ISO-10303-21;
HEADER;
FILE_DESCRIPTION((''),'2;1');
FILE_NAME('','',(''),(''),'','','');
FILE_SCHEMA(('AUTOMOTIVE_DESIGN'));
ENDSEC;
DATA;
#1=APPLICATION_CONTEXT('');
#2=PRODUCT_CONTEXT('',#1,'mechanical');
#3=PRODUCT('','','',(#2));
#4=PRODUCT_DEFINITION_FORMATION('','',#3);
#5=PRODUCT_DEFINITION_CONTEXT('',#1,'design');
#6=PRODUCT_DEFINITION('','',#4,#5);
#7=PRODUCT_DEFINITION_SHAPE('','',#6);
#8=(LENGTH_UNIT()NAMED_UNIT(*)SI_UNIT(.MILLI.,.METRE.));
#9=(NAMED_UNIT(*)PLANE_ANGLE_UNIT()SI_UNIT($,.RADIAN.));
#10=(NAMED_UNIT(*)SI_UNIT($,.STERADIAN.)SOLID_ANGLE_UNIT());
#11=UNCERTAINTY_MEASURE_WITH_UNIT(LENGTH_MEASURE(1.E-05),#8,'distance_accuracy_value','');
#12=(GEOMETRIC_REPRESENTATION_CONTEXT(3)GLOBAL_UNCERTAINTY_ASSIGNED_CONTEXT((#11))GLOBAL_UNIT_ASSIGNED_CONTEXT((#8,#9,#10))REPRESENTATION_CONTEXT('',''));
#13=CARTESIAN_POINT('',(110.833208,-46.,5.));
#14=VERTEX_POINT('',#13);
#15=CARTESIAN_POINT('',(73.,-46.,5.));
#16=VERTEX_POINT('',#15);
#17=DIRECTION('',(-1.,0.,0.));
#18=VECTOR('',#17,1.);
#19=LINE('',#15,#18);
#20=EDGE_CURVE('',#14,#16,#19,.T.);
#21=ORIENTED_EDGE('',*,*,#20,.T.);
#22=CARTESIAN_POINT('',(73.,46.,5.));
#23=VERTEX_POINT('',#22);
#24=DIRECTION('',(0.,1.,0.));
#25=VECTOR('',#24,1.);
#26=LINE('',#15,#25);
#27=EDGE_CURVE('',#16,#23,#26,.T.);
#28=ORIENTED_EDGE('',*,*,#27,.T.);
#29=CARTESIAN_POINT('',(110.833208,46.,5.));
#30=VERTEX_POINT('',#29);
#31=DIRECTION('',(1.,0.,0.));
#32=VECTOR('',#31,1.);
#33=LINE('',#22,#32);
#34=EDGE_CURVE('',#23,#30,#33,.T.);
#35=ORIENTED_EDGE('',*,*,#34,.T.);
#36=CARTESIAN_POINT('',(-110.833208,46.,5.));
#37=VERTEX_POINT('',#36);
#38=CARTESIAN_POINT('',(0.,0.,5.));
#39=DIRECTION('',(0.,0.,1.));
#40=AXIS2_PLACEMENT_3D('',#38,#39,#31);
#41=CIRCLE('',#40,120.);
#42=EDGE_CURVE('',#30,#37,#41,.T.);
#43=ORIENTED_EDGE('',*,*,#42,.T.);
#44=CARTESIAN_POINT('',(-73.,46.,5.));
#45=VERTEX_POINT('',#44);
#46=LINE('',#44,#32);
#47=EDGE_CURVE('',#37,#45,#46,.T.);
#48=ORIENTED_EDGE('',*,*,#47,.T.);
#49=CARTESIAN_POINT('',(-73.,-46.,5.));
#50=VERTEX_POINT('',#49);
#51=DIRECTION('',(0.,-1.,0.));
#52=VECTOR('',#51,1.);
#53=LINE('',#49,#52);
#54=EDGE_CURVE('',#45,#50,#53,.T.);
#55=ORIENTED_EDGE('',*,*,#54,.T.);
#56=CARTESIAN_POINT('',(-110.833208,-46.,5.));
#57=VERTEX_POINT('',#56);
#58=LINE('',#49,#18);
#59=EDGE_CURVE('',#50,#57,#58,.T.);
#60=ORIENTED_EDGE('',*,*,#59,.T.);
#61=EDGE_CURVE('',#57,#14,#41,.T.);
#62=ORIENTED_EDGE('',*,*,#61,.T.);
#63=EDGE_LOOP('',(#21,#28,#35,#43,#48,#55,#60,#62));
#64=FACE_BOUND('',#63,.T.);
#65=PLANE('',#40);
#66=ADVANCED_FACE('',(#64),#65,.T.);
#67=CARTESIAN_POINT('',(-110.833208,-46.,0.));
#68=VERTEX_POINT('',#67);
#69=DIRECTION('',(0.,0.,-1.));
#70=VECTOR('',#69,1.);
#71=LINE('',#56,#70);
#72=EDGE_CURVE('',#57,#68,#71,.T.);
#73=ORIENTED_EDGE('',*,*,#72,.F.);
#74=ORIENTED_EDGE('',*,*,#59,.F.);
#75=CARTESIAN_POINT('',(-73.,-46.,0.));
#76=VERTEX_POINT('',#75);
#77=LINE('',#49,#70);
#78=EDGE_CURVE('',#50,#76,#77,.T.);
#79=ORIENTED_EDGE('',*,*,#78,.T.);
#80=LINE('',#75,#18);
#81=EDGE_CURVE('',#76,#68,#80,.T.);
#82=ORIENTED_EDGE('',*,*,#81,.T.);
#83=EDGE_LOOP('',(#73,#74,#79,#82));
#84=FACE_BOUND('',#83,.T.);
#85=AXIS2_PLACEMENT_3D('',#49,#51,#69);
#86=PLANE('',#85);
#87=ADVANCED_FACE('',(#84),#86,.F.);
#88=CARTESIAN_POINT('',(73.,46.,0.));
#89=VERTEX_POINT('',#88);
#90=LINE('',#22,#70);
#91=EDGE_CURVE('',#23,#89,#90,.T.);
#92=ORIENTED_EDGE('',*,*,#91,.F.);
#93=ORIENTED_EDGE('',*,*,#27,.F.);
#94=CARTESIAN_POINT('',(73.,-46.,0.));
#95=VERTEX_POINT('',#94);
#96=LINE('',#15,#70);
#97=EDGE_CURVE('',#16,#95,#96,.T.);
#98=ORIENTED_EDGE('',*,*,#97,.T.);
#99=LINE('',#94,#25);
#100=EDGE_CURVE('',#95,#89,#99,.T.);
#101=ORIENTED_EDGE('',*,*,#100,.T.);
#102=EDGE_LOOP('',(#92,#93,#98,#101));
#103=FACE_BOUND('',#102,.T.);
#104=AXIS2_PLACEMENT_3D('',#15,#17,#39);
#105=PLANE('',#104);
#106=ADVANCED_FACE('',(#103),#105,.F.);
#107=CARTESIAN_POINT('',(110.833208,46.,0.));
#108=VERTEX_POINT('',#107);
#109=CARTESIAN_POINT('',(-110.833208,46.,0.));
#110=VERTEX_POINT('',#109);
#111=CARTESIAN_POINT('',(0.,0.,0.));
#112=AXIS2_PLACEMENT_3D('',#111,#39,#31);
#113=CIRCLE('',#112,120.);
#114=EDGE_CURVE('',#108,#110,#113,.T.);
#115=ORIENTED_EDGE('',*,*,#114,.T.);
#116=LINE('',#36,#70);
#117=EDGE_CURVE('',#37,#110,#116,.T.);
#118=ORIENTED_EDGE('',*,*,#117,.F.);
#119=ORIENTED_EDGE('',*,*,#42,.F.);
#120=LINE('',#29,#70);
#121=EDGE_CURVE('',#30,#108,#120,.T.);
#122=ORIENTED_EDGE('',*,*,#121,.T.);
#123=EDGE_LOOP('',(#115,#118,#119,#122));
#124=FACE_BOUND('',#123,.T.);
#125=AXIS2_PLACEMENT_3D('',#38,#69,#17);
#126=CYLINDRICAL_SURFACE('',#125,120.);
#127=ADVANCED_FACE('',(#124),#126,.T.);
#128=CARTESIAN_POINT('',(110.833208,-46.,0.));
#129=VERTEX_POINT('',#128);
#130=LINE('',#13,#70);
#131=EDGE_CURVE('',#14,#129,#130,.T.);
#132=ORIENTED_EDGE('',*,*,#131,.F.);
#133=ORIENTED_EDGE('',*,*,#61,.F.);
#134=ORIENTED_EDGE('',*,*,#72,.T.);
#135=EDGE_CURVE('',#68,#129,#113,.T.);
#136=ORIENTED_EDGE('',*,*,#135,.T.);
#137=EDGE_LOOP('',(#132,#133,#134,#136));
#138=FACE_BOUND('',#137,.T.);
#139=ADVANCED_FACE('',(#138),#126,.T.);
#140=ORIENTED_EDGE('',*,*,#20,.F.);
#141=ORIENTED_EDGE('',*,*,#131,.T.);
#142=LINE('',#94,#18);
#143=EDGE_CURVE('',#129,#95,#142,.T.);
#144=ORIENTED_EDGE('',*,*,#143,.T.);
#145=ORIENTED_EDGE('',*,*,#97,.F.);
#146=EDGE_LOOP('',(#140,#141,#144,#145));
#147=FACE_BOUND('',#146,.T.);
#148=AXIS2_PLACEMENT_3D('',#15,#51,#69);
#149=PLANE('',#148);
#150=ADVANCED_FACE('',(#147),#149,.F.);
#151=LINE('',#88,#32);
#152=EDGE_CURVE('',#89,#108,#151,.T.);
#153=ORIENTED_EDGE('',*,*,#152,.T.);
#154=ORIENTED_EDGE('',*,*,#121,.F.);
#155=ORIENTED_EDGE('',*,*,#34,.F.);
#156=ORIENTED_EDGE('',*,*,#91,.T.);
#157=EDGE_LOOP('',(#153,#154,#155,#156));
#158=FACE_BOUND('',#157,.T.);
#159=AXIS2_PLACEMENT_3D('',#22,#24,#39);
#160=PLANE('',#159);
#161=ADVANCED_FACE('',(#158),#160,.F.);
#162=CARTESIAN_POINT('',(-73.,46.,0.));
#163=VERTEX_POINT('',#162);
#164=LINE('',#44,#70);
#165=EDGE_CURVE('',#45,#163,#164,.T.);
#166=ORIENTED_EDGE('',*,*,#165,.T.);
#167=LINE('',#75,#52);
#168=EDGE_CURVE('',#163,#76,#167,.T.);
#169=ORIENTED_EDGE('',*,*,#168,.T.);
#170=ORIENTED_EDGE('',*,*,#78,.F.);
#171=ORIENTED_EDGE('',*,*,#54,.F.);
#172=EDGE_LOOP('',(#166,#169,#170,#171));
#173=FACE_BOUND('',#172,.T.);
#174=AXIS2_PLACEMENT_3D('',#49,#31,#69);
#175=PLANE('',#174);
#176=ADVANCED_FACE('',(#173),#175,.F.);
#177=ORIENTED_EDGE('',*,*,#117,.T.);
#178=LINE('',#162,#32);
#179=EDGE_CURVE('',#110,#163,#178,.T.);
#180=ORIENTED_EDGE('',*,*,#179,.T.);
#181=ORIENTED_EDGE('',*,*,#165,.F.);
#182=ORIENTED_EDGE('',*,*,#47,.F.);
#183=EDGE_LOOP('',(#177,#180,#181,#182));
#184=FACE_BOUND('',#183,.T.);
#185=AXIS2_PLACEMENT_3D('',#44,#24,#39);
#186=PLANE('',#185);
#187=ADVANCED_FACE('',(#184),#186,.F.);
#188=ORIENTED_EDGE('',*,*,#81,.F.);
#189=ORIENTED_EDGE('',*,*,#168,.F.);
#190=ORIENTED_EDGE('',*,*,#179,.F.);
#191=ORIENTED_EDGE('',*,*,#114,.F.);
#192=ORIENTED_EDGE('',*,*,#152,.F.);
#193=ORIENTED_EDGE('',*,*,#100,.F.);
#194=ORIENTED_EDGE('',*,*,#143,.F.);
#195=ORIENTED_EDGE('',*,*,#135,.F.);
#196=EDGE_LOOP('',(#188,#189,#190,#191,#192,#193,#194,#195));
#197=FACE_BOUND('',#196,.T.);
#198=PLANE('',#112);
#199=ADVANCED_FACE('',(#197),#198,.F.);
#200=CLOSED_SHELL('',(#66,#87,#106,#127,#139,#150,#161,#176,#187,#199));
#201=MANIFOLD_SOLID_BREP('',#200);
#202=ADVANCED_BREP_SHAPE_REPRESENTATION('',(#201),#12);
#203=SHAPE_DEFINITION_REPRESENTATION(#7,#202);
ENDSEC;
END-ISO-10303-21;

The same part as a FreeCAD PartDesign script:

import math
import FreeCAD as App
import Part
import Sketcher
from FreeCAD import Vector
Q = App.Units.Quantity

doc = App.newDocument("Part")
body = doc.addObject("PartDesign::Body", "Body")

sketch1 = body.newObject("Sketcher::SketchObject", "Sketch")
sketch1.AttachmentSupport = (doc.getObject("XY_Plane"), [""])
sketch1.MapMode = "FlatFace"
sketch1.addGeometry([
    Part.LineSegment(Vector(73, -46, 0), Vector(73, 46, 0)),
    Part.LineSegment(Vector(73, 46, 0), Vector(110.833208, 46, 0)),
    Part.ArcOfCircle(Part.Circle(Vector(0, 0, 0), Vector(0, 0, 1), 120), math.radians(22.54031), math.radians(157.45969)),
    Part.LineSegment(Vector(-110.833208, 46, 0), Vector(-73, 46, 0)),
    Part.LineSegment(Vector(-73, 46, 0), Vector(-73, -46, 0)),
    Part.LineSegment(Vector(-73, -46, 0), Vector(-110.833208, -46, 0)),
    Part.ArcOfCircle(Part.Circle(Vector(0, 0, 0), Vector(0, 0, 1), 120), math.radians(-157.45969), math.radians(-22.54031)),
    Part.LineSegment(Vector(110.833208, -46, 0), Vector(73, -46, 0)),
], False)
sketch1.addConstraint([
    Sketcher.Constraint("Coincident", 0, 2, 1, 1),
    Sketcher.Constraint("Coincident", 1, 2, 2, 1),
    Sketcher.Constraint("Coincident", 2, 2, 3, 1),
    Sketcher.Constraint("Coincident", 3, 2, 4, 1),
    Sketcher.Constraint("Coincident", 4, 2, 5, 1),
    Sketcher.Constraint("Coincident", 5, 2, 6, 1),
    Sketcher.Constraint("Coincident", 6, 2, 7, 1),
    Sketcher.Constraint("Coincident", 7, 2, 0, 1),
    Sketcher.Constraint("Vertical", 0),
    Sketcher.Constraint("Horizontal", 1),
    Sketcher.Constraint("Horizontal", 3),
    Sketcher.Constraint("Vertical", 4),
    Sketcher.Constraint("Horizontal", 5),
    Sketcher.Constraint("Horizontal", 7),
    Sketcher.Constraint("Coincident", 2, 3, -1, 1),
    Sketcher.Constraint("Coincident", 6, 3, -1, 1),
    Sketcher.Constraint("Equal", 2, 6),
    Sketcher.Constraint("Symmetric", 0, 2, 4, 2, -1, 1),
    Sketcher.Constraint("Horizontal", 1, 2, 2, 2),
    Sketcher.Constraint("Horizontal", 5, 2, 6, 2),
    Sketcher.Constraint("Radius", 2, Q("120 mm")),
    Sketcher.Constraint("DistanceY", 0, 1, 0, 2, Q("92 mm")),
    Sketcher.Constraint("DistanceX", -1, 1, 0, 2, Q("73 mm")),
])
pad1 = body.newObject("PartDesign::Pad", "Pad")
pad1.Profile = sketch1
pad1.Length = 5

doc.recompute()
